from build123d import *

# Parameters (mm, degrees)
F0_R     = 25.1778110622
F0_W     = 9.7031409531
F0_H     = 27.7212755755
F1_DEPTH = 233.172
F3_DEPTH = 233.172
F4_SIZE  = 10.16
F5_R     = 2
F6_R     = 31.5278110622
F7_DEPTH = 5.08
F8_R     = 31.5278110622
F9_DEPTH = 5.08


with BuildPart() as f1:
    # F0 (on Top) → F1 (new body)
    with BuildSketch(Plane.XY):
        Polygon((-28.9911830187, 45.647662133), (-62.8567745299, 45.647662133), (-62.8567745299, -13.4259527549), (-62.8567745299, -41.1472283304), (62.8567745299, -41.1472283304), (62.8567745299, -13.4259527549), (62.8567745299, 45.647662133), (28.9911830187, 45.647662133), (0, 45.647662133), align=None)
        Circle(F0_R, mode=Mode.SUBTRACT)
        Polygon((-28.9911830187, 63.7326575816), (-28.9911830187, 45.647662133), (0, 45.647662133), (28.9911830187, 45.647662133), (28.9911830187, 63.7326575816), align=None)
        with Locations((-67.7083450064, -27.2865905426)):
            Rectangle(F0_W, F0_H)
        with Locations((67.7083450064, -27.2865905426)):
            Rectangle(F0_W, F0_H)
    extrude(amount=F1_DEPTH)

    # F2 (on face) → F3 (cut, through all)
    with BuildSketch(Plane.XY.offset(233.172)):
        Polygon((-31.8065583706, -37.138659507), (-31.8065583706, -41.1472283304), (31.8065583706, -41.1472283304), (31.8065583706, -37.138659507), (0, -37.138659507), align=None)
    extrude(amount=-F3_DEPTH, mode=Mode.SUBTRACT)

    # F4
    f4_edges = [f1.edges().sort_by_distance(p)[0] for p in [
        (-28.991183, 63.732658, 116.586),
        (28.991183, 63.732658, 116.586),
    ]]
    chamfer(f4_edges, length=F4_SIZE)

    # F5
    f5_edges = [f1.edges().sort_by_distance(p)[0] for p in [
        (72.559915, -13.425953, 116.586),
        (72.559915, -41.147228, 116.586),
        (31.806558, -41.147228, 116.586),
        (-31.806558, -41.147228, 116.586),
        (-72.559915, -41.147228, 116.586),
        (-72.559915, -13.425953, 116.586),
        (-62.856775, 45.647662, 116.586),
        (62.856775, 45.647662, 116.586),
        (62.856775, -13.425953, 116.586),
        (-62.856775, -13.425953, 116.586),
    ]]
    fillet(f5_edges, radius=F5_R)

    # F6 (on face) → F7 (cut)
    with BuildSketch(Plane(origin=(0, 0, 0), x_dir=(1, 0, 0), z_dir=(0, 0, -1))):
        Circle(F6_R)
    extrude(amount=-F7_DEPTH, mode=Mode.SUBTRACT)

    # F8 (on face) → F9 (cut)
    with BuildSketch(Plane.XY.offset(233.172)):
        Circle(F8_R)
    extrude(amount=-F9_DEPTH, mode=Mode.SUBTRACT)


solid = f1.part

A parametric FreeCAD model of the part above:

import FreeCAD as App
import Part
import Sketcher

V = App.Vector
Q = App.Units.Quantity


def edges_at(feature, points):
    """Names of the edges that pass closest to the given points."""
    edges = feature.Shape.Edges
    near = lambda p: min(range(len(edges)), key=lambda i: edges[i].distToShape(Part.Vertex(*p))[0])
    return sorted({f"Edge{near(p) + 1}" for p in points})


def add_polygon(sketch, points):
    """Adds a closed chain of lines whose ends are joined by coincident constraints."""
    first, n = sketch.GeometryCount, len(points)
    for a, b in zip(points, points[1:] + points[:1]):
        sketch.addGeometry(Part.LineSegment(App.Vector(*a, 0), App.Vector(*b, 0)), False)
    for i in range(n):
        sketch.addConstraint(Sketcher.Constraint("Coincident", first + i, 2, first + (i + 1) % n, 1))

doc = App.newDocument("Part")
body = doc.addObject("PartDesign::Body", "Body")

# Sketch on XY plane
sketch1 = doc.addObject("Sketcher::SketchObject", "Sketch")
body.addObject(sketch1)
sketch1.AttachmentSupport = (doc.XY_Plane, [""])
sketch1.MapMode = "FlatFace"
add_polygon(sketch1, [(-62.856775, 45.647662), (-62.856775, -13.425953), (-72.559915, -13.425953), (-72.559915, -41.147228), (72.559915, -41.147228), (72.559915, -13.425953), (62.856775, -13.425953), (62.856775, 45.647662), (28.991183, 45.647662), (28.991183, 63.732658), (-28.991183, 63.732658), (-28.991183, 45.647662)])  # lines 0-11
sketch1.addGeometry(Part.Circle(V(0, 0, 0), V(0, 0, 1), 25.177811), False)  # 12
sketch1.addConstraint(Sketcher.Constraint("Vertical", 0))
sketch1.addConstraint(Sketcher.Constraint("Horizontal", 1))
sketch1.addConstraint(Sketcher.Constraint("Vertical", 2))
sketch1.addConstraint(Sketcher.Constraint("Horizontal", 3))
sketch1.addConstraint(Sketcher.Constraint("Vertical", 4))
sketch1.addConstraint(Sketcher.Constraint("Horizontal", 5))
sketch1.addConstraint(Sketcher.Constraint("Vertical", 6))
sketch1.addConstraint(Sketcher.Constraint("Horizontal", 7))
sketch1.addConstraint(Sketcher.Constraint("Vertical", 8))
sketch1.addConstraint(Sketcher.Constraint("Horizontal", 9))
sketch1.addConstraint(Sketcher.Constraint("Vertical", 10))
sketch1.addConstraint(Sketcher.Constraint("Horizontal", 11))
sketch1.addConstraint(Sketcher.Constraint("Coincident", 12, 3, -1, 1))
sketch1.addConstraint(Sketcher.Constraint("Symmetric", 1, 2, 4, 2, -2))
sketch1.addConstraint(Sketcher.Constraint("Symmetric", 7, 2, 10, 2, -2))
sketch1.addConstraint(Sketcher.Constraint("Equal", 1, 5))
sketch1.addConstraint(Sketcher.Constraint("Diameter", 12, Q("50.355622 mm")))
sketch1.addConstraint(Sketcher.Constraint("DistanceX", 1, 2, 1, 1, Q("9.703141 mm")))
sketch1.addConstraint(Sketcher.Constraint("DistanceX", 3, 1, 3, 2, Q("145.119831 mm")))
sketch1.addConstraint(Sketcher.Constraint("DistanceX", 7, 2, 7, 1, Q("33.865592 mm")))
sketch1.addConstraint(Sketcher.Constraint("DistanceY", 0, 2, 0, 1, Q("59.073615 mm")))
sketch1.addConstraint(Sketcher.Constraint("DistanceY", 2, 2, 2, 1, Q("27.721276 mm")))
sketch1.addConstraint(Sketcher.Constraint("DistanceY", 8, 1, 8, 2, Q("18.084995 mm")))
sketch1.addConstraint(Sketcher.Constraint("DistanceY", 2, 2, -1, 1, Q("41.147228 mm")))
pad1 = doc.addObject("PartDesign::Pad", "Pad")
body.addObject(pad1)
pad1.Profile = sketch1
pad1.Length = Q("9.18 in")

# Sketch on XY plane
sketch2 = doc.addObject("Sketcher::SketchObject", "Sketch001")
body.addObject(sketch2)
sketch2.AttachmentSupport = (doc.XY_Plane, [""])
sketch2.MapMode = "FlatFace"
sketch2.AttachmentOffset = App.Placement(V(0, 0, 9.18 * 25.4), App.Rotation())
add_polygon(sketch2, [(-31.806558, -37.13866), (-31.806558, -41.147228), (31.806558, -41.147228), (31.806558, -37.13866)])  # lines 0-3
sketch2.addConstraint(Sketcher.Constraint("Vertical", 0))
sketch2.addConstraint(Sketcher.Constraint("Horizontal", 1))
sketch2.addConstraint(Sketcher.Constraint("Vertical", 2))
sketch2.addConstraint(Sketcher.Constraint("Horizontal", 3))
sketch2.addConstraint(Sketcher.Constraint("DistanceY", 0, 2, 0, 1, Q("4.008569 mm")))
sketch2.addConstraint(Sketcher.Constraint("DistanceX", 1, 1, 1, 2, Q("63.613117 mm")))
sketch2.addConstraint(Sketcher.Constraint("DistanceX", 0, 2, -1, 1, Q("31.806558 mm")))
sketch2.addConstraint(Sketcher.Constraint("DistanceY", 0, 2, -1, 1, Q("41.147228 mm")))
pocket1 = doc.addObject("PartDesign::Pocket", "Pocket")
body.addObject(pocket1)
pocket1.Profile = sketch2
pocket1.Type = "ThroughAll"
doc.recompute()

chamfer = doc.addObject("PartDesign::Chamfer", "Chamfer")
body.addObject(chamfer)
chamfer.Base = (pocket1, edges_at(pocket1, [(-28.991, 63.733, 116.586), (28.991, 63.733, 116.586)]))
chamfer.Size = Q("0.4 in")
doc.recompute()

fillet = doc.addObject("PartDesign::Fillet", "Fillet")
body.addObject(fillet)
fillet.Base = (chamfer, edges_at(chamfer, [
    (72.56, -13.426, 116.586),
    (72.56, -41.147, 116.586),
    (31.807, -41.147, 116.586),
    (-31.807, -41.147, 116.586),
    (-72.56, -41.147, 116.586),
    (-72.56, -13.426, 116.586),
    (-62.857, 45.648, 116.586),
    (62.857, 45.648, 116.586),
    (62.857, -13.426, 116.586),
    (-62.857, -13.426, 116.586),
]))
fillet.Radius = 2

# Sketch on XY plane
sketch3 = doc.addObject("Sketcher::SketchObject", "Sketch002")
body.addObject(sketch3)
sketch3.AttachmentSupport = (doc.XY_Plane, [""])
sketch3.MapMode = "FlatFace"
sketch3.addGeometry(Part.Circle(V(0, 0, 0), V(0, 0, 1), 31.527811), False)
sketch3.addConstraint(Sketcher.Constraint("Coincident", 0, 3, -1, 1))
sketch3.addConstraint(Sketcher.Constraint("Diameter", 0, Q("63.055622 mm")))
pocket2 = doc.addObject("PartDesign::Pocket", "Pocket001")
body.addObject(pocket2)
pocket2.Profile = sketch3
pocket2.Length = Q("0.2 in")
pocket2.Reversed = True

# Sketch on XY plane
sketch4 = doc.addObject("Sketcher::SketchObject", "Sketch003")
body.addObject(sketch4)
sketch4.AttachmentSupport = (doc.XY_Plane, [""])
sketch4.MapMode = "FlatFace"
sketch4.AttachmentOffset = App.Placement(V(0, 0, 9.18 * 25.4), App.Rotation())
sketch4.addGeometry(Part.Circle(V(0, 0, 0), V(0, 0, 1), 31.527811), False)
sketch4.addConstraint(Sketcher.Constraint("Coincident", 0, 3, -1, 1))
sketch4.addConstraint(Sketcher.Constraint("Diameter", 0, Q("63.055622 mm")))
pocket3 = doc.addObject("PartDesign::Pocket", "Pocket002")
body.addObject(pocket3)
pocket3.Profile = sketch4
pocket3.Length = Q("0.2 in")

doc.recompute()
